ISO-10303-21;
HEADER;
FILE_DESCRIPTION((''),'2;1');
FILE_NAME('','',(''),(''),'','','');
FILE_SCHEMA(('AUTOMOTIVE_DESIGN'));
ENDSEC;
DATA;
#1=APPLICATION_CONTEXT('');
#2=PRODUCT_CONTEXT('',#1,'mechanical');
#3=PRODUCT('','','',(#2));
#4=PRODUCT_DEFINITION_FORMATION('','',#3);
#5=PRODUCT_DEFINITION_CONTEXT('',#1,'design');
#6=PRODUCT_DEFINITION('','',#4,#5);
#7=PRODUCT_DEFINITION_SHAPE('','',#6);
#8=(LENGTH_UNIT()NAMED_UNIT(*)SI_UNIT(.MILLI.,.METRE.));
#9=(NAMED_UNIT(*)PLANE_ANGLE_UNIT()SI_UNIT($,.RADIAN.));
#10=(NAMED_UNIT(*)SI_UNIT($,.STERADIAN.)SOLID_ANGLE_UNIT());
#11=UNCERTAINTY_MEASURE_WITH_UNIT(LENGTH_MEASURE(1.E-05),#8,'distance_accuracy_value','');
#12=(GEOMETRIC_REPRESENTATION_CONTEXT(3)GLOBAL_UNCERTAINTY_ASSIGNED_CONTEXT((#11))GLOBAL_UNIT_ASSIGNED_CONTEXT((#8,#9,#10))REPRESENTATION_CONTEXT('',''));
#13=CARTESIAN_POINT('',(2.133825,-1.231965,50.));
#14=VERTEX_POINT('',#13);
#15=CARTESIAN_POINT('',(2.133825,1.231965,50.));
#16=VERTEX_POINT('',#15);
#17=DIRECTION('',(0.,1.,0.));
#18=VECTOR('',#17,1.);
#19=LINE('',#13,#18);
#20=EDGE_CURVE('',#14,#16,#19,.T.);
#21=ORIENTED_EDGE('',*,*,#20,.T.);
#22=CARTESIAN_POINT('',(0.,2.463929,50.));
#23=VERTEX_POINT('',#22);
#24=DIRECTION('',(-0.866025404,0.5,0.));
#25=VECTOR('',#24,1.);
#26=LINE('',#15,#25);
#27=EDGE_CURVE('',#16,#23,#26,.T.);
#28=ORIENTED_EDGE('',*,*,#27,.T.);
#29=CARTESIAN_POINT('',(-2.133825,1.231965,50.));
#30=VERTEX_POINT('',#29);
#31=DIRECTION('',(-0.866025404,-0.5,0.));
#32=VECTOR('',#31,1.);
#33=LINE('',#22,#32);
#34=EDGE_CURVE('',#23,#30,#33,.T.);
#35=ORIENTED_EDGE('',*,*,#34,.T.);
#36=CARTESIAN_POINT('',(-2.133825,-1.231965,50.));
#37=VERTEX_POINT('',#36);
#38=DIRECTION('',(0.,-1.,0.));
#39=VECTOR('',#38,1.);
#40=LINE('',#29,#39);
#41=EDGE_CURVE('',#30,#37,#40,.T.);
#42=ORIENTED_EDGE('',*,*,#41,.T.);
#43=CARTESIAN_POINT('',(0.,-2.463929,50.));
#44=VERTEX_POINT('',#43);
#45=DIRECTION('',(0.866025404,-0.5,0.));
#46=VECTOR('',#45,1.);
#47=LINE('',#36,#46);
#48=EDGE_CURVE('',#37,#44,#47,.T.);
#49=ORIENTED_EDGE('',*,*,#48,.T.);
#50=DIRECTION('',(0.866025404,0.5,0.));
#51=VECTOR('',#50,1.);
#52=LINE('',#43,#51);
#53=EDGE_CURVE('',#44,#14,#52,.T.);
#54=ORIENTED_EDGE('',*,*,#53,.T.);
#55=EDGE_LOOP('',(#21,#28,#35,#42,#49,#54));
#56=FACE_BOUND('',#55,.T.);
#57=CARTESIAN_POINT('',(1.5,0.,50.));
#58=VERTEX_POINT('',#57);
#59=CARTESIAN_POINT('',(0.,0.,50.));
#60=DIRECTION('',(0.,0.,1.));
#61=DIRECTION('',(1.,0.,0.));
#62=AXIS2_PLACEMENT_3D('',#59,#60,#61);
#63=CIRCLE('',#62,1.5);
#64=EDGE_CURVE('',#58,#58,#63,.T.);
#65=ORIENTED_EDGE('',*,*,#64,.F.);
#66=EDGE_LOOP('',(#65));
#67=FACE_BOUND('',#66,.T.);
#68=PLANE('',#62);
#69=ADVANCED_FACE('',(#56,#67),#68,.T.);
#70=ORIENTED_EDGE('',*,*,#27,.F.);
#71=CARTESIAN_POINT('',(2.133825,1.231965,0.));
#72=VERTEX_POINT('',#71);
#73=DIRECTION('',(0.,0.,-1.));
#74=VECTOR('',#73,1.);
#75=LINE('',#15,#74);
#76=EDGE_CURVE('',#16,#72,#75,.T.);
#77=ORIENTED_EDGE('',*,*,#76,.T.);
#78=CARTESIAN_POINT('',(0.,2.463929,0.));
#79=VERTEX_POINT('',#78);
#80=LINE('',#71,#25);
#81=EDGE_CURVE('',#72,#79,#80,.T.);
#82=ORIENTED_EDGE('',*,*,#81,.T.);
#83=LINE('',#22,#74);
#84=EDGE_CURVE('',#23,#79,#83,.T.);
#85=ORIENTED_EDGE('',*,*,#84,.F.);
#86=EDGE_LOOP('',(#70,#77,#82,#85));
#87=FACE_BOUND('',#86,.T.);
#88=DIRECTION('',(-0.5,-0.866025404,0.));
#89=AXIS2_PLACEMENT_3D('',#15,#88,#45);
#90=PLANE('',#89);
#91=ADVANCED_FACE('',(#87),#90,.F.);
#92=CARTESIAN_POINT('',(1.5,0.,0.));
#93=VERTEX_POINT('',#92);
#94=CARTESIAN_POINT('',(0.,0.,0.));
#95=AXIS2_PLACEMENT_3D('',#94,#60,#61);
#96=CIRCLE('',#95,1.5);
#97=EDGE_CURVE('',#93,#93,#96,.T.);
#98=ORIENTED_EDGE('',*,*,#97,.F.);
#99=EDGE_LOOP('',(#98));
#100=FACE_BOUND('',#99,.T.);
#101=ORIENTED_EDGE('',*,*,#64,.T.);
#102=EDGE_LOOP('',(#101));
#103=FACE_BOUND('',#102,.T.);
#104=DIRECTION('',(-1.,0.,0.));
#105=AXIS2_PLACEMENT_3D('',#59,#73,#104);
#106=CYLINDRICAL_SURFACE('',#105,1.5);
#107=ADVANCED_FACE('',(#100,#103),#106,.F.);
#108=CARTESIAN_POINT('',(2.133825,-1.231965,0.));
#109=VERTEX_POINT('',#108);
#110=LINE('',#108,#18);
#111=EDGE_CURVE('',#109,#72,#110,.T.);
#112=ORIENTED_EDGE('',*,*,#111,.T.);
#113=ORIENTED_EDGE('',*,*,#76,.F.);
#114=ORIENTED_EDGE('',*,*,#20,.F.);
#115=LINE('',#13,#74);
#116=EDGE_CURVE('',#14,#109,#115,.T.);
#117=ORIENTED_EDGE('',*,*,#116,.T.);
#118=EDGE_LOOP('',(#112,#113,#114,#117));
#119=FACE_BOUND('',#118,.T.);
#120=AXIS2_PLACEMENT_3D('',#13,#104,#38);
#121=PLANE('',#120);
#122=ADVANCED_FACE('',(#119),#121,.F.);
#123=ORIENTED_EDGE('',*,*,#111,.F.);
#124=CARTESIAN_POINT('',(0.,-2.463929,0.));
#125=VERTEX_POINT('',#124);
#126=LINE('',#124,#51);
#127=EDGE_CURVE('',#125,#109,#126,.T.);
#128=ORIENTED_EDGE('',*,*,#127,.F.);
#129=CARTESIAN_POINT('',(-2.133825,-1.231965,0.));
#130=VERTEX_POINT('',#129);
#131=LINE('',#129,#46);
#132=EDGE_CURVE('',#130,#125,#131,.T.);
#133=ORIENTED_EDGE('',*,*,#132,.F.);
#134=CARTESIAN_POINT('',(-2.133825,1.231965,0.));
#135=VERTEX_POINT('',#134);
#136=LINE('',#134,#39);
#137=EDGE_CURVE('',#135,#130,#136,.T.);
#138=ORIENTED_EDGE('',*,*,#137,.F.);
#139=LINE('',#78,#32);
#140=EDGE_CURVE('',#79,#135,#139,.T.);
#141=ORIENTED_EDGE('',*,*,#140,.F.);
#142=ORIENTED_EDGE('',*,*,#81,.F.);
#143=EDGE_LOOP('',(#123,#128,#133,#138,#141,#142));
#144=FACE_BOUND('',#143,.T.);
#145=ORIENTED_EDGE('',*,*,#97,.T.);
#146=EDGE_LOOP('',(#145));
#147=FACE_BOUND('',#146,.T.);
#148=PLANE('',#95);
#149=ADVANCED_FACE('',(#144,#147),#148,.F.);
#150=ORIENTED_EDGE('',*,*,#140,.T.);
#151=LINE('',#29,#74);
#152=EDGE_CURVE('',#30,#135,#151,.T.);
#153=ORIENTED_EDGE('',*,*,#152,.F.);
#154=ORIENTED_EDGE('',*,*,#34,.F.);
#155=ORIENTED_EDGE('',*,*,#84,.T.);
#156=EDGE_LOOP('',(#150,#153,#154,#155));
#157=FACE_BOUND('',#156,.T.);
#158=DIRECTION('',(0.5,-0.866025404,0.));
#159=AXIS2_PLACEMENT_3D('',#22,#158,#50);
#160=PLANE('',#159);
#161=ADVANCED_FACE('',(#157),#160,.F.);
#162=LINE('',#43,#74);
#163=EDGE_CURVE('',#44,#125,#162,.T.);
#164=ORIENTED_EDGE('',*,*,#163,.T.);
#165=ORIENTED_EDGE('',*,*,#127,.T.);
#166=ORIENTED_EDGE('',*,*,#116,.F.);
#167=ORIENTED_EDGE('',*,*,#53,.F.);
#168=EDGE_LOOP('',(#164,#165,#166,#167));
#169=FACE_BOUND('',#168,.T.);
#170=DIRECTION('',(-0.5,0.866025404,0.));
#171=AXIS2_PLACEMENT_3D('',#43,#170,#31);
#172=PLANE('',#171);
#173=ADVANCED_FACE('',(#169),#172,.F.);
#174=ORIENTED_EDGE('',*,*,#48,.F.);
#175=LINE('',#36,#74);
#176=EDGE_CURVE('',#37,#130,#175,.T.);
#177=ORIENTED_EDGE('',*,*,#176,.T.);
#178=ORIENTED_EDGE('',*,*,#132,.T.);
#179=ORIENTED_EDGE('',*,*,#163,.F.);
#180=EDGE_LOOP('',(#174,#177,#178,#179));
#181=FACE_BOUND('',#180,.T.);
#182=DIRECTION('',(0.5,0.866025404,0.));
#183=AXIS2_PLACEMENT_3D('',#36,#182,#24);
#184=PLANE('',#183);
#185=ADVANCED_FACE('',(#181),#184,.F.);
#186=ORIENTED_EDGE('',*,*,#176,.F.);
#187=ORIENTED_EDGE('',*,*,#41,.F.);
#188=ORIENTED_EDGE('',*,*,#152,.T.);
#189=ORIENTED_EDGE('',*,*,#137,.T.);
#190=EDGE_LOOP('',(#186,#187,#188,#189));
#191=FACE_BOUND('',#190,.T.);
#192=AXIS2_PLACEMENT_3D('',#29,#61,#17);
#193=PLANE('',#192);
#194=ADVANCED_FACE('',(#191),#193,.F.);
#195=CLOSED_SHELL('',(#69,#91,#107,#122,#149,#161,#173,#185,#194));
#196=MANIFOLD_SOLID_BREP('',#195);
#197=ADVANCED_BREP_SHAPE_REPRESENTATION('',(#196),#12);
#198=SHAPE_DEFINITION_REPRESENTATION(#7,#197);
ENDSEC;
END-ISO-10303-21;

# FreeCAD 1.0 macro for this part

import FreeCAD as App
import Part
import Sketcher
Q = App.Units.Quantity

doc = App.newDocument("Part")
body = doc.addObject("PartDesign::Body", "Body")

# Sketch on XY plane
sketch1 = doc.addObject("Sketcher::SketchObject", "Sketch")
body.addObject(sketch1)
sketch1.AttachmentSupport = (doc.XY_Plane, [""])
sketch1.MapMode = "FlatFace"
sketch1.addGeometry(Part.LineSegment(App.Vector(0, 2.5, 0), App.Vector(-2.1, 1.2, 0)), False)
sketch1.addGeometry(Part.LineSegment(App.Vector(-2.1, 1.2, 0), App.Vector(-2.1, -1.2, 0)), False)
sketch1.addGeometry(Part.LineSegment(App.Vector(-2.1, -1.2, 0), App.Vector(0, -2.5, 0)), False)
sketch1.addGeometry(Part.LineSegment(App.Vector(0, -2.5, 0), App.Vector(2.1, -1.2, 0)), False)
sketch1.addGeometry(Part.LineSegment(App.Vector(2.1, -1.2, 0), App.Vector(2.1, 1.2, 0)), False)
sketch1.addGeometry(Part.LineSegment(App.Vector(2.1, 1.2, 0), App.Vector(0, 2.5, 0)), False)
sketch1.addGeometry(Part.Circle(App.Vector(0, 0, 0), App.Vector(0, 0, 1), 1.5), False)
sketch1.addConstraint(Sketcher.Constraint("Coincident", 0, 2, 1, 1))
sketch1.addConstraint(Sketcher.Constraint("Coincident", 1, 2, 2, 1))
sketch1.addConstraint(Sketcher.Constraint("Coincident", 2, 2, 3, 1))
sketch1.addConstraint(Sketcher.Constraint("Coincident", 3, 2, 4, 1))
sketch1.addConstraint(Sketcher.Constraint("Coincident", 4, 2, 5, 1))
sketch1.addConstraint(Sketcher.Constraint("Coincident", 5, 2, 0, 1))
sketch1.addConstraint(Sketcher.Constraint("Vertical", 1))
sketch1.addConstraint(Sketcher.Constraint("Vertical", 4))
sketch1.addConstraint(Sketcher.Constraint("Coincident", 6, 3, -1, 1))
sketch1.addConstraint(Sketcher.Constraint("Symmetric", 0, 2, 3, 2, -1, 1))
sketch1.addConstraint(Sketcher.Constraint("Symmetric", 2, 2, 5, 2, -1, 1))
sketch1.addConstraint(Sketcher.Constraint("PointOnObject", 2, 2, -2))
sketch1.addConstraint(Sketcher.Constraint("Parallel", 2, 5))
sketch1.addConstraint(Sketcher.Constraint("Horizontal", 1, 2, 3, 2))
sketch1.addConstraint(Sketcher.Constraint("Diameter", 6, Q("3 mm")))
sketch1.addConstraint(Sketcher.Constraint("Angle", 0, Q("-150 deg")))
sketch1.addConstraint(Sketcher.Constraint("DistanceY", 1, 2, 1, 1, Q("2.463929 mm")))
sketch1.addConstraint(Sketcher.Constraint("Distance", 0, Q("2.463929 mm")))
pad1 = doc.addObject("PartDesign::Pad", "Pad")
body.addObject(pad1)
pad1.Profile = sketch1
pad1.Length = 50

doc.recompute()
